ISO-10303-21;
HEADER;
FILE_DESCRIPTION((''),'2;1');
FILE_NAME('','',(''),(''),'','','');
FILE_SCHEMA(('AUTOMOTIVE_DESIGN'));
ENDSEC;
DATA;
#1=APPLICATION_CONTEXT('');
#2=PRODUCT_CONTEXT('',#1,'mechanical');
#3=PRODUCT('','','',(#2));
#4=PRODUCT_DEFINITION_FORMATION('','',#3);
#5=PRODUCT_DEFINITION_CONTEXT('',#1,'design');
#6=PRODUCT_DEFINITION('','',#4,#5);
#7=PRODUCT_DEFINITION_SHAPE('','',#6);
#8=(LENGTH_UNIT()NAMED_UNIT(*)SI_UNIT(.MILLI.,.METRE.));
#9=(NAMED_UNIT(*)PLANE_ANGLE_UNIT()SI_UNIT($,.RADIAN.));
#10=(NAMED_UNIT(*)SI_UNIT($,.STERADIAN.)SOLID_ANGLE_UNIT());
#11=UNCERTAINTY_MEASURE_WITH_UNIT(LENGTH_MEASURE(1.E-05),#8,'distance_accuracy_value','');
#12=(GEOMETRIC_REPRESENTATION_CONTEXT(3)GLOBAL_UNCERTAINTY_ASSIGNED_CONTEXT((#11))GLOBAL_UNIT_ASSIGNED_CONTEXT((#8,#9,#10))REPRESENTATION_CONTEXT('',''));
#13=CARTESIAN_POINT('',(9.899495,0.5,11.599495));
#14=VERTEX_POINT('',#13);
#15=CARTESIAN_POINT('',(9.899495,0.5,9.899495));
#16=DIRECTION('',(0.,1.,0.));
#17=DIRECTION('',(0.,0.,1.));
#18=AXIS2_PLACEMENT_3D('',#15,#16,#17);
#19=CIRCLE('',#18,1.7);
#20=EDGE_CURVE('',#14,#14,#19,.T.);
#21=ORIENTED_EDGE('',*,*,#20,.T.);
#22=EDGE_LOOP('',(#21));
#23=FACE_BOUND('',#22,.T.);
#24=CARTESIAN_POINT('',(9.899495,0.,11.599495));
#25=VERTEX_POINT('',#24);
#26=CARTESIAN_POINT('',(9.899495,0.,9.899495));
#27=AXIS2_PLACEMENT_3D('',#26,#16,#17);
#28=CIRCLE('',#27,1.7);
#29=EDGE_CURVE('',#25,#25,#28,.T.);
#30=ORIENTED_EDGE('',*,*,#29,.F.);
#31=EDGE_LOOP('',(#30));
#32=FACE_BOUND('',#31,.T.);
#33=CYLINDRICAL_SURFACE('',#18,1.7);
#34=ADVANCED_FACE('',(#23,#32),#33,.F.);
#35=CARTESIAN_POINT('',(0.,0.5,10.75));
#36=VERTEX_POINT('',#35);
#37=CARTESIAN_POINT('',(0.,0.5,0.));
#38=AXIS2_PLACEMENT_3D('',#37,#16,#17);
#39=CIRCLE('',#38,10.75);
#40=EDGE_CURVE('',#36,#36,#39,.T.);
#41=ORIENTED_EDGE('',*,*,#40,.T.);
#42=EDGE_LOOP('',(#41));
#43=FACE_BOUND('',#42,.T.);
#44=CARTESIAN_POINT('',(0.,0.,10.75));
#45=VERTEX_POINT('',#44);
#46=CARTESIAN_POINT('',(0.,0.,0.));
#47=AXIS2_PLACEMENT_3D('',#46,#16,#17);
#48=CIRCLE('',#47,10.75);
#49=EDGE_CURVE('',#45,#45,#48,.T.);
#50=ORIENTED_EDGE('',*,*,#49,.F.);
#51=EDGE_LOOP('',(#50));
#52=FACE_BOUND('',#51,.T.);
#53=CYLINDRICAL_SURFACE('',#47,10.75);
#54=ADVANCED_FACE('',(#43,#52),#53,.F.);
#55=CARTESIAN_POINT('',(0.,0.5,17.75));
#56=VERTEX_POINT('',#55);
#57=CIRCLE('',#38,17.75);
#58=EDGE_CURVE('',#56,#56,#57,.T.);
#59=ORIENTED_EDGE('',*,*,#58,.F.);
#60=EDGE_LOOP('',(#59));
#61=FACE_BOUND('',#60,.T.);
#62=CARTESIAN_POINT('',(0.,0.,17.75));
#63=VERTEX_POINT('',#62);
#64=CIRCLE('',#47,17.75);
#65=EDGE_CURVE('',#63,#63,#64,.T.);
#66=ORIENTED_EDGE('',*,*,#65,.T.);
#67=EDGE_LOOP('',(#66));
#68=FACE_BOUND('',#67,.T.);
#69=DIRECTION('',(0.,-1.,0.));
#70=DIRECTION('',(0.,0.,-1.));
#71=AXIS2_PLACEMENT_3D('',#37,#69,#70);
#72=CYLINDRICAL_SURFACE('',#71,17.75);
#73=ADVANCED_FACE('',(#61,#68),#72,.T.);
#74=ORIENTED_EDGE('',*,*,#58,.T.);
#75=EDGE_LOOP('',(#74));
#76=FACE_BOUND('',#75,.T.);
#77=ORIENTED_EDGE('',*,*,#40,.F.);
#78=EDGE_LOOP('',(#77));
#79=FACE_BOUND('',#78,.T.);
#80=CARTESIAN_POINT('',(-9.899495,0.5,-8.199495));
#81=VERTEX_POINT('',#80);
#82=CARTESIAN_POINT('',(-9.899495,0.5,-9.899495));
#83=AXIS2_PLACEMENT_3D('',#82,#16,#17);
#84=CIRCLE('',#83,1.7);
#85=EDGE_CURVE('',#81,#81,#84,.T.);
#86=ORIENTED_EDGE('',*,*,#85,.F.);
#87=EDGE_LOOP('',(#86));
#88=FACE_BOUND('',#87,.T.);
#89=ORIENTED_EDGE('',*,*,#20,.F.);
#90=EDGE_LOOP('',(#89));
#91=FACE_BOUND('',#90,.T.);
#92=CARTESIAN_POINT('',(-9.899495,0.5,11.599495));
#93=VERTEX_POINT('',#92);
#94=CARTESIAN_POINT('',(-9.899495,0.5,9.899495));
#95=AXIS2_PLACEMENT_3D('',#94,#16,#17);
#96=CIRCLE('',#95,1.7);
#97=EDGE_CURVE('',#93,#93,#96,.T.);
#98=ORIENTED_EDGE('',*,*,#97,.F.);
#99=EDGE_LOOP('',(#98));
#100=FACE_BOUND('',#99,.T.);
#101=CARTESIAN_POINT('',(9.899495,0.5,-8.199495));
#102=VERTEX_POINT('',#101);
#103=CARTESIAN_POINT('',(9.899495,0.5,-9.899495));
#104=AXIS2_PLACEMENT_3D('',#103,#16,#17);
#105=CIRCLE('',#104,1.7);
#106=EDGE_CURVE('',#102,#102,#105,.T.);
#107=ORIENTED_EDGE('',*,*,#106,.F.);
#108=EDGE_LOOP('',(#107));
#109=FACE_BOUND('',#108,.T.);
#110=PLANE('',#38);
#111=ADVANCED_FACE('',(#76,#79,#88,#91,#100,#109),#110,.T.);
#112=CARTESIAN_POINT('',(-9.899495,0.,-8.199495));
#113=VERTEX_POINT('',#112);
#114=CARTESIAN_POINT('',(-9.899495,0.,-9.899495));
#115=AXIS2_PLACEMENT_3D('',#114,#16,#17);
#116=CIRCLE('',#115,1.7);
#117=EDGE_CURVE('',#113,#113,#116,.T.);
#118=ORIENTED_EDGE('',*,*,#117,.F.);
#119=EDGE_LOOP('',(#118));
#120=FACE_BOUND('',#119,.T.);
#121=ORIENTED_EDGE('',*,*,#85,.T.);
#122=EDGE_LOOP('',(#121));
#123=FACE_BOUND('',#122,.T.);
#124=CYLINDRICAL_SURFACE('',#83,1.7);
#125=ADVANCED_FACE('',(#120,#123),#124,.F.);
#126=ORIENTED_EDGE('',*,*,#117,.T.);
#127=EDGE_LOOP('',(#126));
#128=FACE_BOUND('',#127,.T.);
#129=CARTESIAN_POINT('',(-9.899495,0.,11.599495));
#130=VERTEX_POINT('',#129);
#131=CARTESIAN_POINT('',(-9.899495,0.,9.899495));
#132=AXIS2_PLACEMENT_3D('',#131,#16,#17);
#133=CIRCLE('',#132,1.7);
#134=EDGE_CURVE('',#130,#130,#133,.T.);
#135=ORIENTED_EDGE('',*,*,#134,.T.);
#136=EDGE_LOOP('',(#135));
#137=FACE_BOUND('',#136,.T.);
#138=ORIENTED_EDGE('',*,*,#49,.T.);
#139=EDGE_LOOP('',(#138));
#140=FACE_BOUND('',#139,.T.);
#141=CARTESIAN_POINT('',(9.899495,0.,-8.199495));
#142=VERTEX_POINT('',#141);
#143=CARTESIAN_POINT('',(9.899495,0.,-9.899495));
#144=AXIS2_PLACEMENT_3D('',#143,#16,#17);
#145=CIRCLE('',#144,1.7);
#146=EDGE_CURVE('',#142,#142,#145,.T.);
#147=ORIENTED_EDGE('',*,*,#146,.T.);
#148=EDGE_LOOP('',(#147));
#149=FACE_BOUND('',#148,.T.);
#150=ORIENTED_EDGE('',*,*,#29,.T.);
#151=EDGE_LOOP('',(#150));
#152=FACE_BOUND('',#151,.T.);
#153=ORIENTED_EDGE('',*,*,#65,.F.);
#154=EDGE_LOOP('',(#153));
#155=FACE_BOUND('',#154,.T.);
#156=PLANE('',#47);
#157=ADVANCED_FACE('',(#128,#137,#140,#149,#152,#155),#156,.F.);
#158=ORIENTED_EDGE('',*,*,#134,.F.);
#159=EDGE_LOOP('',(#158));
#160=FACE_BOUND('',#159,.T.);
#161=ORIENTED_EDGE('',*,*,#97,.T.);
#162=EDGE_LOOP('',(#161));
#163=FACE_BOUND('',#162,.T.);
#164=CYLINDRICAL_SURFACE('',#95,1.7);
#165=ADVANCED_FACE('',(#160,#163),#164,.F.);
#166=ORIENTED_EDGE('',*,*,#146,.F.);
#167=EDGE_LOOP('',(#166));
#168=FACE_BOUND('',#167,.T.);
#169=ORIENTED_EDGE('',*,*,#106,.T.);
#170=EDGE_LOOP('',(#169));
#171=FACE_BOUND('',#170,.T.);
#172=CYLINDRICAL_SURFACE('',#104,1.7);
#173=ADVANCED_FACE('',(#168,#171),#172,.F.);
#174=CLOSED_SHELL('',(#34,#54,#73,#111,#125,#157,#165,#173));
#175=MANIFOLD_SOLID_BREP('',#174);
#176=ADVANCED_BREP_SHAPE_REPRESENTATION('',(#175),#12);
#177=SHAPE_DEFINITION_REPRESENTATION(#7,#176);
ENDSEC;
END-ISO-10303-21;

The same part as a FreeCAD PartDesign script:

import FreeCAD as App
import Part
import Sketcher
from FreeCAD import Vector
Q = App.Units.Quantity

doc = App.newDocument("Part")
body = doc.addObject("PartDesign::Body", "Body")

# Sketch on XZ plane
sketch1 = body.newObject("Sketcher::SketchObject", "Sketch")
sketch1.AttachmentSupport = (doc.getObject("XZ_Plane"), [""])
sketch1.MapMode = "FlatFace"
sketch1.addGeometry(Part.Circle(Vector(0, 0, 0), Vector(0, 0, 1), 17.75), False)
sketch1.addConstraint(Sketcher.Constraint("Coincident", 0, 3, -1, 1))
sketch1.addConstraint(Sketcher.Constraint("Diameter", 0, Q("35.5 mm")))
pad1 = body.newObject("PartDesign::Pad", "Pad")
pad1.Profile = sketch1
pad1.Length = 0.5
pad1.Reversed = True

# Sketch on XZ plane
sketch2 = body.newObject("Sketcher::SketchObject", "Sketch001")
sketch2.AttachmentSupport = (doc.getObject("XZ_Plane"), [""])
sketch2.MapMode = "FlatFace"
sketch2.AttachmentOffset = App.Placement(Vector(0, 0, -0.5), App.Rotation())
sketch2.addGeometry(Part.Circle(Vector(0, 0, 0), Vector(0, 0, 1), 10.75), False)
sketch2.addConstraint(Sketcher.Constraint("Coincident", 0, 3, -1, 1))
sketch2.addConstraint(Sketcher.Constraint("Diameter", 0, Q("21.5 mm")))
pocket1 = body.newObject("PartDesign::Pocket", "Pocket")
pocket1.Profile = sketch2
pocket1.Type = "ThroughAll"
pocket1.Reversed = True

# Sketch on XZ plane
sketch3 = body.newObject("Sketcher::SketchObject", "Sketch002")
sketch3.AttachmentSupport = (doc.getObject("XZ_Plane"), [""])
sketch3.MapMode = "FlatFace"
sketch3.AttachmentOffset = App.Placement(Vector(0, 0, -0.5), App.Rotation())
sketch3.addGeometry(Part.Circle(Vector(-9.899495, -9.899495, 0), Vector(0, 0, 1), 1.7), False)
sketch3.addGeometry(Part.Circle(Vector(9.899495, 9.899495, 0), Vector(0, 0, 1), 1.7), False)
sketch3.addGeometry(Part.Circle(Vector(-9.899495, 9.899495, 0), Vector(0, 0, 1), 1.7), False)
sketch3.addGeometry(Part.Circle(Vector(9.899495, -9.899495, 0), Vector(0, 0, 1), 1.7), False)
sketch3.addConstraint(Sketcher.Constraint("Equal", 0, 1))
sketch3.addConstraint(Sketcher.Constraint("Equal", 1, 2))
sketch3.addConstraint(Sketcher.Constraint("Equal", 2, 3))
sketch3.addConstraint(Sketcher.Constraint("Symmetric", 0, 3, 1, 3, -1, 1))
sketch3.addConstraint(Sketcher.Constraint("Symmetric", 2, 3, 3, 3, -1, 1))
sketch3.addConstraint(Sketcher.Constraint("Symmetric", 1, 3, 2, 3, -2))
sketch3.addConstraint(Sketcher.Constraint("Diameter", 0, Q("3.4 mm")))
sketch3.addConstraint(Sketcher.Constraint("DistanceX", 0, 3, 1, 3, Q("19.79899 mm")))
sketch3.addConstraint(Sketcher.Constraint("DistanceY", 0, 3, 1, 3, Q("19.79899 mm")))
doc.recompute()
hole = body.newObject("PartDesign::Hole", "Hole")
hole.Profile = sketch3
hole.ThreadType = "None"
hole.Diameter = 3.4
hole.DepthType = "ThroughAll"
hole.Reversed = True

doc.recompute()
